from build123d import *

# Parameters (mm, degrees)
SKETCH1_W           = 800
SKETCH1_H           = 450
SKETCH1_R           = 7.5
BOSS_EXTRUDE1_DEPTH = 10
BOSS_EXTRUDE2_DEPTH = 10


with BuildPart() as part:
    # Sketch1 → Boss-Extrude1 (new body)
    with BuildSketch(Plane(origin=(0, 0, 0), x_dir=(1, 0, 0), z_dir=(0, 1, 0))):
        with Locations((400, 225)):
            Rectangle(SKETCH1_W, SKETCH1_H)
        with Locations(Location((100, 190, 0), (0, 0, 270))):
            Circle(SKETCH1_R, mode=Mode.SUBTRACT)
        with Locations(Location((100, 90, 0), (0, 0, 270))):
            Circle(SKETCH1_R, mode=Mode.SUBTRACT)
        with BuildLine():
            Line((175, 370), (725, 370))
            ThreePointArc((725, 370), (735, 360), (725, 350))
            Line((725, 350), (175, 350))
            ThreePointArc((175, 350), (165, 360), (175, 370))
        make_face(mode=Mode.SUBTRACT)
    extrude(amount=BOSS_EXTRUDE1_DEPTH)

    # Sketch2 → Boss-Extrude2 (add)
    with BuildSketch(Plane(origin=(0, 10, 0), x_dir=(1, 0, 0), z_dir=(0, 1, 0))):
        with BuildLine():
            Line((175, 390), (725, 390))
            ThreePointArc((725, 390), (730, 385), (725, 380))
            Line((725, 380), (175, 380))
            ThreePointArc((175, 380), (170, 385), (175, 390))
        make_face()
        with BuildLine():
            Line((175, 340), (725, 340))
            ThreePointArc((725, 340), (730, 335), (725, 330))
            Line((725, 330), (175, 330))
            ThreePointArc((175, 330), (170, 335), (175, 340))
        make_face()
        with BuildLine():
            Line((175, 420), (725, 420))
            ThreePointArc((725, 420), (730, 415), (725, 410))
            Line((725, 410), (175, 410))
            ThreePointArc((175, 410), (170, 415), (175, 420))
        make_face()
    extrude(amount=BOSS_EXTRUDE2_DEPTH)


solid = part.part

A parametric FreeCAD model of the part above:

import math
import FreeCAD as App
import Part
import Sketcher

doc = App.newDocument("Part")
params = doc.addObject("Spreadsheet::Sheet", "Params")
for row, (alias, value) in enumerate([
    ("sketch1_diameter", "15 mm"),
    ("sketch1_radius", "10 mm"),
    ("sketch1_width", "800 mm"),
    ("sketch1_width2", "550 mm"),
    ("sketch1_height", "450 mm"),
    ("pad1_length", "10 mm"),
    ("sketch2_radius", "5 mm"),
    ("sketch2_width", "550 mm"),
    ("pad2_length", "10 mm"),
], start=1):
    params.set(f"A{row}", alias)
    params.set(f"B{row}", "=" + value)
    params.setAlias(f"B{row}", alias)

body = doc.addObject("PartDesign::Body", "Body")

# Sketch on XZ plane
sketch1 = body.newObject("Sketcher::SketchObject", "Sketch")
sketch1.AttachmentSupport = (doc.getObject("XZ_Plane"), [""])
sketch1.MapMode = "FlatFace"
sketch1.addGeometry([
    Part.LineSegment(App.Vector(0, -450, 0), App.Vector(0, 0, 0)),  # 0
    Part.LineSegment(App.Vector(0, 0, 0), App.Vector(800, 0, 0)),  # 1
    Part.LineSegment(App.Vector(800, 0, 0), App.Vector(800, -450, 0)),  # 2
    Part.LineSegment(App.Vector(800, -450, 0), App.Vector(0, -450, 0)),  # 3
    Part.Circle(App.Vector(100, -90, 0), App.Vector(0, 0, 1), 7.5),  # 4
    Part.Circle(App.Vector(100, -190, 0), App.Vector(0, 0, 1), 7.5),  # 5
    Part.ArcOfCircle(Part.Circle(App.Vector(175, -360, 0), App.Vector(0, 0, 1), 10), math.radians(90), math.radians(270)),  # 6
    Part.LineSegment(App.Vector(175, -370, 0), App.Vector(725, -370, 0)),  # 7
    Part.ArcOfCircle(Part.Circle(App.Vector(725, -360, 0), App.Vector(0, 0, 1), 10), math.radians(-90), math.radians(90)),  # 8
    Part.LineSegment(App.Vector(725, -350, 0), App.Vector(175, -350, 0)),  # 9
], False)
sketch1.addConstraint([
    Sketcher.Constraint("Coincident", 0, 2, 1, 1),
    Sketcher.Constraint("Coincident", 1, 2, 2, 1),
    Sketcher.Constraint("Coincident", 2, 2, 3, 1),
    Sketcher.Constraint("Coincident", 3, 2, 0, 1),
    Sketcher.Constraint("Tangent", 6, 2, 7, 1),
    Sketcher.Constraint("Tangent", 7, 2, 8, 1),
    Sketcher.Constraint("Tangent", 8, 2, 9, 1),
    Sketcher.Constraint("Tangent", 9, 2, 6, 1),
    Sketcher.Constraint("Vertical", 0),
    Sketcher.Constraint("Horizontal", 1),
    Sketcher.Constraint("Vertical", 2),
    Sketcher.Constraint("Horizontal", 3),
    Sketcher.Constraint("Horizontal", 7),
    Sketcher.Constraint("Horizontal", 9),
    Sketcher.Constraint("Coincident", 0, 2, -1, 1),
    Sketcher.Constraint("Equal", 4, 5),
    Sketcher.Constraint("Vertical", 4, 3, 5, 3),
    Sketcher.Constraint("Diameter", 4, 15.0),
    Sketcher.Constraint("Radius", 6, 10.0),
    Sketcher.Constraint("DistanceX", 1, 1, 1, 2, 800.0),
    Sketcher.Constraint("DistanceX", 7, 1, 7, 2, 550.0),
    Sketcher.Constraint("DistanceY", 0, 1, 0, 2, 450.0),
    Sketcher.Constraint("DistanceX", -1, 1, 4, 3, 100.0),
    Sketcher.Constraint("DistanceY", 4, 3, -1, 1, 90.0),
    Sketcher.Constraint("DistanceY", 5, 3, -1, 1, 190.0),
    Sketcher.Constraint("DistanceX", -1, 1, 6, 3, 175.0),
    Sketcher.Constraint("DistanceY", 6, 3, -1, 1, 360.0),
])
sketch1.setExpression("Constraints[17]", "Params.sketch1_diameter")
sketch1.setExpression("Constraints[18]", "Params.sketch1_radius")
sketch1.setExpression("Constraints[19]", "Params.sketch1_width")
sketch1.setExpression("Constraints[20]", "Params.sketch1_width2")
sketch1.setExpression("Constraints[21]", "Params.sketch1_height")
pad1 = body.newObject("PartDesign::Pad", "Pad")
pad1.Profile = sketch1
pad1.setExpression("Length", "Params.pad1_length")
pad1.Reversed = True

# Sketch on XZ plane
sketch2 = body.newObject("Sketcher::SketchObject", "Sketch001")
sketch2.AttachmentSupport = (doc.getObject("XZ_Plane"), [""])
sketch2.MapMode = "FlatFace"
sketch2.AttachmentOffset = App.Placement(App.Vector(0, 0, -10), App.Rotation())
sketch2.addGeometry([
    Part.LineSegment(App.Vector(725, -390, 0), App.Vector(175, -390, 0)),  # 0
    Part.ArcOfCircle(Part.Circle(App.Vector(175, -385, 0), App.Vector(0, 0, 1), 5), math.radians(90), math.radians(270)),  # 1
    Part.LineSegment(App.Vector(175, -380, 0), App.Vector(725, -380, 0)),  # 2
    Part.ArcOfCircle(Part.Circle(App.Vector(725, -385, 0), App.Vector(0, 0, 1), 5), math.radians(-90), math.radians(90)),  # 3
    Part.LineSegment(App.Vector(725, -340, 0), App.Vector(175, -340, 0)),  # 4
    Part.ArcOfCircle(Part.Circle(App.Vector(175, -335, 0), App.Vector(0, 0, 1), 5), math.radians(90), math.radians(270)),  # 5
    Part.LineSegment(App.Vector(175, -330, 0), App.Vector(725, -330, 0)),  # 6
    Part.ArcOfCircle(Part.Circle(App.Vector(725, -335, 0), App.Vector(0, 0, 1), 5), math.radians(-90), math.radians(90)),  # 7
    Part.LineSegment(App.Vector(725, -420, 0), App.Vector(175, -420, 0)),  # 8
    Part.ArcOfCircle(Part.Circle(App.Vector(175, -415, 0), App.Vector(0, 0, 1), 5), math.radians(90), math.radians(270)),  # 9
    Part.LineSegment(App.Vector(175, -410, 0), App.Vector(725, -410, 0)),  # 10
    Part.ArcOfCircle(Part.Circle(App.Vector(725, -415, 0), App.Vector(0, 0, 1), 5), math.radians(-90), math.radians(90)),  # 11
], False)
sketch2.addConstraint([
    Sketcher.Constraint("Tangent", 0, 2, 1, 2),
    Sketcher.Constraint("Tangent", 1, 1, 2, 1),
    Sketcher.Constraint("Tangent", 2, 2, 3, 2),
    Sketcher.Constraint("Tangent", 3, 1, 0, 1),
    Sketcher.Constraint("Tangent", 4, 2, 5, 2),
    Sketcher.Constraint("Tangent", 5, 1, 6, 1),
    Sketcher.Constraint("Tangent", 6, 2, 7, 2),
    Sketcher.Constraint("Tangent", 7, 1, 4, 1),
    Sketcher.Constraint("Tangent", 8, 2, 9, 2),
    Sketcher.Constraint("Tangent", 9, 1, 10, 1),
    Sketcher.Constraint("Tangent", 10, 2, 11, 2),
    Sketcher.Constraint("Tangent", 11, 1, 8, 1),
    Sketcher.Constraint("Horizontal", 0),
    Sketcher.Constraint("Horizontal", 2),
    Sketcher.Constraint("Horizontal", 4),
    Sketcher.Constraint("Horizontal", 6),
    Sketcher.Constraint("Horizontal", 8),
    Sketcher.Constraint("Horizontal", 10),
    Sketcher.Constraint("Equal", 3, 5),
    Sketcher.Constraint("Equal", 7, 9),
    Sketcher.Constraint("Vertical", 1, 3, 5, 3),
    Sketcher.Constraint("Vertical", 3, 3, 7, 3),
    Sketcher.Constraint("Vertical", 5, 3, 9, 3),
    Sketcher.Constraint("Vertical", 7, 3, 11, 3),
    Sketcher.Constraint("Radius", 1, 5.0),
    Sketcher.Constraint("DistanceX", 0, 2, 0, 1, 550.0),
    Sketcher.Constraint("DistanceX", -1, 1, 1, 3, 175.0),
    Sketcher.Constraint("DistanceY", 1, 3, -1, 1, 385.0),
    Sketcher.Constraint("DistanceY", 5, 3, -1, 1, 335.0),
    Sketcher.Constraint("DistanceY", 9, 3, -1, 1, 415.0),
])
sketch2.setExpression("Constraints[24]", "Params.sketch2_radius")
sketch2.setExpression("Constraints[25]", "Params.sketch2_width")
pad2 = body.newObject("PartDesign::Pad", "Pad001")
pad2.Profile = sketch2
pad2.setExpression("Length", "Params.pad2_length")
pad2.Reversed = True

doc.recompute()
